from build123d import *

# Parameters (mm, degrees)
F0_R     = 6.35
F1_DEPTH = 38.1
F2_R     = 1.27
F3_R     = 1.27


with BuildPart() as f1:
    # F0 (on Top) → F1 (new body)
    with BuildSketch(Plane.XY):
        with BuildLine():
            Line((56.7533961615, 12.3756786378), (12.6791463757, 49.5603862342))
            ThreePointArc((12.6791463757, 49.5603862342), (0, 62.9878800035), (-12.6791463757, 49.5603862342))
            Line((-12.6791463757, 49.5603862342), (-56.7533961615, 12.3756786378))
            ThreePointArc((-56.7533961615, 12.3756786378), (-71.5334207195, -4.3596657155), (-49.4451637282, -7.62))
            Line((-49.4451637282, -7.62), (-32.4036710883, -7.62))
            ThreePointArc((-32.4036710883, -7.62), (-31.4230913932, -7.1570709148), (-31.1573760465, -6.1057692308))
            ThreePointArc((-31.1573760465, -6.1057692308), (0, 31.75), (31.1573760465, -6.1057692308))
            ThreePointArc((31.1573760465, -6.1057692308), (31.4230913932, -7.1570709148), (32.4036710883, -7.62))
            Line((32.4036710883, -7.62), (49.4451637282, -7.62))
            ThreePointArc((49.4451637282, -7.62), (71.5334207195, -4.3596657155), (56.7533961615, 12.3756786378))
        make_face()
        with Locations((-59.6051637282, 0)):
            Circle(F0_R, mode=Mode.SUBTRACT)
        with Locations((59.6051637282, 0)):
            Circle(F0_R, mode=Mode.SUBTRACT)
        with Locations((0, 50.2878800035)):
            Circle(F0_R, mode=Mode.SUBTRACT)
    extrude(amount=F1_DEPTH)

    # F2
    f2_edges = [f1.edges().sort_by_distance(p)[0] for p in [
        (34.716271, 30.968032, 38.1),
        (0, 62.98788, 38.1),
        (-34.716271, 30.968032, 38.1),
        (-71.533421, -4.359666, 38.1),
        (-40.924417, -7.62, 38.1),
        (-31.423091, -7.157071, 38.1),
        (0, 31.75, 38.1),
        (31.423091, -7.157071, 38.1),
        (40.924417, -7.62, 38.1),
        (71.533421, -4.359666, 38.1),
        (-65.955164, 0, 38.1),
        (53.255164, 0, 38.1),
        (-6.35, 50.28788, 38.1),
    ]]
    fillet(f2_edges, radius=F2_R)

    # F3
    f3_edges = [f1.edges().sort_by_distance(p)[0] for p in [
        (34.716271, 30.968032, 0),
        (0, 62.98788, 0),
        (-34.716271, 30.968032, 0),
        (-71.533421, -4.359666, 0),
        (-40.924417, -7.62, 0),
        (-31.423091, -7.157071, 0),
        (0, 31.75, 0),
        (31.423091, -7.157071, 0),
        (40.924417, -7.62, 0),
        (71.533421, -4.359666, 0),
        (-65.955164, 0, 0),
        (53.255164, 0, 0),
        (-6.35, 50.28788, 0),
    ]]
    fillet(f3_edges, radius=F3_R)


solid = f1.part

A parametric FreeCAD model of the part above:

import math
import FreeCAD as App
import Part
import Sketcher
Q = App.Units.Quantity


def edges_at(feature, points):
    """Names of the edges that pass closest to the given points."""
    edges = feature.Shape.Edges
    near = lambda p: min(range(len(edges)), key=lambda i: edges[i].distToShape(Part.Vertex(*p))[0])
    return sorted({f"Edge{near(p) + 1}" for p in points})

doc = App.newDocument("Part")
params = doc.addObject("Spreadsheet::Sheet", "Params")
for row, (alias, value) in enumerate([
    ("sketch1_diameter", "0.5 in"),
    ("sketch1_radius", "0.5 in"),
    ("sketch1_radius2", "0.05 in"),
    ("sketch1_radius3", "1.25 in"),
    ("pad1_length", "1.5 in"),
    ("fillet_radius", "0.05 in"),
    ("fillet2_radius", "0.05 in"),
], start=1):
    params.set(f"A{row}", alias)
    params.set(f"B{row}", "=" + value)
    params.setAlias(f"B{row}", alias)

body = doc.addObject("PartDesign::Body", "Body")

sketch1 = body.newObject("Sketcher::SketchObject", "Sketch")
sketch1.AttachmentSupport = (doc.getObject("XY_Plane"), [""])
sketch1.MapMode = "FlatFace"
sketch1.addGeometry(Part.LineSegment(App.Vector(56.8, 12.4, 0), App.Vector(12.7, 49.6, 0)), False)
sketch1.addGeometry(Part.ArcOfCircle(Part.Circle(App.Vector(0, 50.3, 0), App.Vector(0, 0, 1), 12.7), math.radians(-3), math.radians(183)), False)
sketch1.addGeometry(Part.LineSegment(App.Vector(-12.7, 49.6, 0), App.Vector(-56.8, 12.4, 0)), False)
sketch1.addGeometry(Part.ArcOfCircle(Part.Circle(App.Vector(-59.6, 0, 0), App.Vector(0, 0, 1), 12.7), math.radians(77), math.radians(323)), False)
sketch1.addGeometry(Part.LineSegment(App.Vector(-49.4, -7.6, 0), App.Vector(-32.4, -7.6, 0)), False)
sketch1.addGeometry(Part.ArcOfCircle(Part.Circle(App.Vector(-32.4, -6.3, 0), App.Vector(0, 0, 1), 1.3), math.radians(-90), math.radians(11)), False)
sketch1.addGeometry(Part.ArcOfCircle(Part.Circle(App.Vector(0, 0, 0), App.Vector(0, 0, 1), 31.8), math.radians(-11), math.radians(191)), False)
sketch1.addGeometry(Part.ArcOfCircle(Part.Circle(App.Vector(32.4, -6.3, 0), App.Vector(0, 0, 1), 1.3), math.radians(169), math.radians(270)), False)
sketch1.addGeometry(Part.LineSegment(App.Vector(32.4, -7.6, 0), App.Vector(49.4, -7.6, 0)), False)
sketch1.addGeometry(Part.ArcOfCircle(Part.Circle(App.Vector(59.6, 0, 0), App.Vector(0, 0, 1), 12.7), math.radians(-143), math.radians(103)), False)
sketch1.addGeometry(Part.Circle(App.Vector(-59.6, 0, 0), App.Vector(0, 0, 1), 6.3), False)
sketch1.addGeometry(Part.Circle(App.Vector(59.6, 0, 0), App.Vector(0, 0, 1), 6.3), False)
sketch1.addGeometry(Part.Circle(App.Vector(0, 50.3, 0), App.Vector(0, 0, 1), 6.3), False)
sketch1.addConstraint(Sketcher.Constraint("Coincident", 0, 2, 1, 1))
sketch1.addConstraint(Sketcher.Constraint("Coincident", 1, 2, 2, 1))
sketch1.addConstraint(Sketcher.Constraint("Coincident", 2, 2, 3, 1))
sketch1.addConstraint(Sketcher.Constraint("Coincident", 3, 2, 4, 1))
sketch1.addConstraint(Sketcher.Constraint("Tangent", 4, 2, 5, 1))
sketch1.addConstraint(Sketcher.Constraint("Tangent", 5, 2, 6, 2))
sketch1.addConstraint(Sketcher.Constraint("Tangent", 6, 1, 7, 1))
sketch1.addConstraint(Sketcher.Constraint("Tangent", 7, 2, 8, 1))
sketch1.addConstraint(Sketcher.Constraint("Coincident", 8, 2, 9, 1))
sketch1.addConstraint(Sketcher.Constraint("Coincident", 9, 2, 0, 1))
sketch1.addConstraint(Sketcher.Constraint("Horizontal", 4))
sketch1.addConstraint(Sketcher.Constraint("Horizontal", 8))
sketch1.addConstraint(Sketcher.Constraint("Coincident", 6, 3, -1, 1))
sketch1.addConstraint(Sketcher.Constraint("Coincident", 10, 3, 3, 3))
sketch1.addConstraint(Sketcher.Constraint("Coincident", 11, 3, 9, 3))
sketch1.addConstraint(Sketcher.Constraint("Coincident", 12, 3, 1, 3))
sketch1.addConstraint(Sketcher.Constraint("Equal", 1, 3))
sketch1.addConstraint(Sketcher.Constraint("Equal", 5, 7))
sketch1.addConstraint(Sketcher.Constraint("Equal", 3, 9))
sketch1.addConstraint(Sketcher.Constraint("Equal", 10, 11))
sketch1.addConstraint(Sketcher.Constraint("Equal", 11, 12))
sketch1.addConstraint(Sketcher.Constraint("Symmetric", 3, 3, 9, 3, -1, 1))
sketch1.addConstraint(Sketcher.Constraint("Symmetric", 0, 2, 1, 2, -2))
sketch1.addConstraint(Sketcher.Constraint("Symmetric", 3, 2, 8, 2, -2))
sketch1.addConstraint(Sketcher.Constraint("Horizontal", 2, 2, 9, 2))
sketch1.addConstraint(Sketcher.Constraint("Diameter", 10, Q("0.5 in")))
sketch1.addConstraint(Sketcher.Constraint("Radius", 1, Q("0.5 in")))
sketch1.addConstraint(Sketcher.Constraint("Radius", 5, Q("0.05 in")))
sketch1.addConstraint(Sketcher.Constraint("Radius", 6, Q("1.25 in")))
sketch1.addConstraint(Sketcher.Constraint("DistanceY", 3, 2, -1, 1, Q("0.3 in")))
sketch1.addConstraint(Sketcher.Constraint("Distance", 0, 57.664911))
sketch1.addConstraint(Sketcher.Constraint("DistanceX", 4, 1, 4, 2, 17.041493))
sketch1.addConstraint(Sketcher.Constraint("DistanceY", -1, 1, 1, 3, 50.28788))
sketch1.addConstraint(Sketcher.Constraint("DistanceY", -1, 1, 2, 2, 12.375679))
sketch1.setExpression("Constraints[25]", "Params.sketch1_diameter")
sketch1.setExpression("Constraints[26]", "Params.sketch1_radius")
sketch1.setExpression("Constraints[27]", "Params.sketch1_radius2")
sketch1.setExpression("Constraints[28]", "Params.sketch1_radius3")
pad1 = body.newObject("PartDesign::Pad", "Pad")
pad1.Profile = sketch1
pad1.setExpression("Length", "Params.pad1_length")
doc.recompute()

fillet = body.newObject("PartDesign::Fillet", "Fillet")
fillet.Base = (pad1, edges_at(pad1, [
    (34.716, 30.968, 38.1),
    (0, 62.988, 38.1),
    (-34.716, 30.968, 38.1),
    (-71.533, -4.36, 38.1),
    (-40.924, -7.62, 38.1),
    (-31.423, -7.157, 38.1),
    (0, 31.75, 38.1),
    (31.423, -7.157, 38.1),
    (40.924, -7.62, 38.1),
    (71.533, -4.36, 38.1),
    (-65.955, 0, 38.1),
    (53.255, 0, 38.1),
    (-6.35, 50.288, 38.1),
]))
fillet.setExpression("Radius", "Params.fillet_radius")
doc.recompute()

fillet2 = body.newObject("PartDesign::Fillet", "Fillet001")
fillet2.Base = (fillet, edges_at(fillet, [
    (34.716, 30.968, 0),
    (0, 62.988, 0),
    (-34.716, 30.968, 0),
    (-71.533, -4.36, 0),
    (-40.924, -7.62, 0),
    (-31.423, -7.157, 0),
    (0, 31.75, 0),
    (31.423, -7.157, 0),
    (40.924, -7.62, 0),
    (71.533, -4.36, 0),
    (-65.955, 0, 0),
    (53.255, 0, 0),
    (-6.35, 50.288, 0),
]))
fillet2.setExpression("Radius", "Params.fillet2_radius")

doc.recompute()
